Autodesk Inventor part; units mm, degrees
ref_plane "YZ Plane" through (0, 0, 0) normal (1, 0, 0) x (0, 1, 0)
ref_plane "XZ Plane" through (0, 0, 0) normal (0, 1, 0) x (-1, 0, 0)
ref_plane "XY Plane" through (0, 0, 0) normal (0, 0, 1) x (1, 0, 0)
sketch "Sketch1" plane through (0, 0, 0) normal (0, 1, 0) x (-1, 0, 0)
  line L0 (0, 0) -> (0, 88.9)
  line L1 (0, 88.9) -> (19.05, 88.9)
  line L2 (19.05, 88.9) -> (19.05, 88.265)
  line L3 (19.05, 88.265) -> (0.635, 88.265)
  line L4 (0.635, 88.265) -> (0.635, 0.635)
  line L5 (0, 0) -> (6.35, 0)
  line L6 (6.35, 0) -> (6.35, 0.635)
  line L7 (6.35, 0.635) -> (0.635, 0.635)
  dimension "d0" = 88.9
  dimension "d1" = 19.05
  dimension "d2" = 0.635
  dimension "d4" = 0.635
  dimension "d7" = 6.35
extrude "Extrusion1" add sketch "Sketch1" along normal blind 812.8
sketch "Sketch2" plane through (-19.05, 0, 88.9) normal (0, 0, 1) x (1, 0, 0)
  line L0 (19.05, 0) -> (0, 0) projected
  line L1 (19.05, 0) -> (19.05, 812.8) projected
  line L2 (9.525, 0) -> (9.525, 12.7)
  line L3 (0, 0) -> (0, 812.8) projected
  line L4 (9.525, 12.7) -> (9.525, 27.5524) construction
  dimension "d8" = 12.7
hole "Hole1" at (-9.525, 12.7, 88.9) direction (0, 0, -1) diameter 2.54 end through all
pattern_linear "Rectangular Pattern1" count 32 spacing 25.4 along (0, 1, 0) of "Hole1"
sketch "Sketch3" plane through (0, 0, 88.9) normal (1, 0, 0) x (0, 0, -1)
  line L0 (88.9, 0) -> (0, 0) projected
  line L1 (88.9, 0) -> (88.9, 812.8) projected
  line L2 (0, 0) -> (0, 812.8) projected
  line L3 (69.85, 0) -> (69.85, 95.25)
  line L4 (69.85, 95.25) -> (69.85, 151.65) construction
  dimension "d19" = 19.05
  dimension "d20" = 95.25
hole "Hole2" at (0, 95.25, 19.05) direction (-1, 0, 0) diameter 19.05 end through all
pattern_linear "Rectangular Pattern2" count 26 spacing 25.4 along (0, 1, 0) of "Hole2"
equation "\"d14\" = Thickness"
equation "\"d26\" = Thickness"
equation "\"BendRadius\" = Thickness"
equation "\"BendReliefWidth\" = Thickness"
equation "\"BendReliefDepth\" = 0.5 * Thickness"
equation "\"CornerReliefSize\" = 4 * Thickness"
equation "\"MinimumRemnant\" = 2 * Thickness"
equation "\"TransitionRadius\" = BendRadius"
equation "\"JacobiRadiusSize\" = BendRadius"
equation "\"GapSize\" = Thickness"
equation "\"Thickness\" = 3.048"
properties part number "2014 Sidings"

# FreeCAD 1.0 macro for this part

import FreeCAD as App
import Part
import Sketcher
from FreeCAD import Vector
Q = App.Units.Quantity

doc = App.newDocument("Part")
body = doc.addObject("PartDesign::Body", "Body")

sketch1 = body.newObject("Sketcher::SketchObject", "Sketch")
sketch1.AttachmentSupport = (doc.getObject("XZ_Plane"), [""])
sketch1.MapMode = "FlatFace"
sketch1.addGeometry(Part.LineSegment(Vector(0, 88.9, 0), Vector(0, 0, 0)), False)
sketch1.addGeometry(Part.LineSegment(Vector(0, 0, 0), Vector(-6.35, 0, 0)), False)
sketch1.addGeometry(Part.LineSegment(Vector(-6.35, 0, 0), Vector(-6.35, 0.635, 0)), False)
sketch1.addGeometry(Part.LineSegment(Vector(-6.35, 0.635, 0), Vector(-0.635, 0.635, 0)), False)
sketch1.addGeometry(Part.LineSegment(Vector(-0.635, 0.635, 0), Vector(-0.635, 88.265, 0)), False)
sketch1.addGeometry(Part.LineSegment(Vector(-0.635, 88.265, 0), Vector(-19.05, 88.265, 0)), False)
sketch1.addGeometry(Part.LineSegment(Vector(-19.05, 88.265, 0), Vector(-19.05, 88.9, 0)), False)
sketch1.addGeometry(Part.LineSegment(Vector(-19.05, 88.9, 0), Vector(0, 88.9, 0)), False)
sketch1.addConstraint(Sketcher.Constraint("Coincident", 0, 2, 1, 1))
sketch1.addConstraint(Sketcher.Constraint("Coincident", 1, 2, 2, 1))
sketch1.addConstraint(Sketcher.Constraint("Coincident", 2, 2, 3, 1))
sketch1.addConstraint(Sketcher.Constraint("Coincident", 3, 2, 4, 1))
sketch1.addConstraint(Sketcher.Constraint("Coincident", 4, 2, 5, 1))
sketch1.addConstraint(Sketcher.Constraint("Coincident", 5, 2, 6, 1))
sketch1.addConstraint(Sketcher.Constraint("Coincident", 6, 2, 7, 1))
sketch1.addConstraint(Sketcher.Constraint("Coincident", 7, 2, 0, 1))
sketch1.addConstraint(Sketcher.Constraint("Vertical", 0))
sketch1.addConstraint(Sketcher.Constraint("Horizontal", 1))
sketch1.addConstraint(Sketcher.Constraint("Vertical", 2))
sketch1.addConstraint(Sketcher.Constraint("Horizontal", 3))
sketch1.addConstraint(Sketcher.Constraint("Vertical", 4))
sketch1.addConstraint(Sketcher.Constraint("Horizontal", 5))
sketch1.addConstraint(Sketcher.Constraint("Vertical", 6))
sketch1.addConstraint(Sketcher.Constraint("Horizontal", 7))
sketch1.addConstraint(Sketcher.Constraint("Coincident", 0, 2, -1, 1))
sketch1.addConstraint(Sketcher.Constraint("Equal", 2, 6))
sketch1.addConstraint(Sketcher.Constraint("DistanceY", 0, 2, 0, 1, Q("3.5 in")))
sketch1.addConstraint(Sketcher.Constraint("DistanceX", 1, 2, 1, 1, Q("0.25 in")))
sketch1.addConstraint(Sketcher.Constraint("DistanceX", 7, 1, 7, 2, Q("0.75 in")))
sketch1.addConstraint(Sketcher.Constraint("DistanceY", 2, 1, 2, 2, Q("0.025 in")))
sketch1.addConstraint(Sketcher.Constraint("DistanceX", 3, 2, -1, 1, Q("0.025 in")))
pad1 = body.newObject("PartDesign::Pad", "Pad")
pad1.Profile = sketch1
pad1.Length = Q("32 in")
pad1.Reversed = True

sketch2 = body.newObject("Sketcher::SketchObject", "Sketch001")
sketch2.AttachmentSupport = (doc.getObject("XY_Plane"), [""])
sketch2.MapMode = "FlatFace"
sketch2.AttachmentOffset = App.Placement(Vector(0, 0, 3.5 * 25.4), App.Rotation())
sketch2.addGeometry(Part.Circle(Vector(-9.525, 12.7, 0), Vector(0, 0, 1), 1.27), False)
sketch2.addConstraint(Sketcher.Constraint("Diameter", 0, Q("0.1 in")))
sketch2.addConstraint(Sketcher.Constraint("DistanceY", -1, 1, 0, 3, Q("0.5 in")))
sketch2.addConstraint(Sketcher.Constraint("DistanceX", 0, 3, -1, 1, Q("0.375 in")))
doc.recompute()
hole = body.newObject("PartDesign::Hole", "Hole")
hole.Profile = sketch2
hole.ThreadType = "None"
hole.Diameter = Q("0.1 in")
hole.DepthType = "ThroughAll"
doc.recompute()

linearpattern = body.newObject("PartDesign::LinearPattern", "LinearPattern")
linearpattern.Originals = [hole]
linearpattern.Direction = (doc.getObject("Y_Axis"), [""])
linearpattern.Mode = "offset"
linearpattern.Offset = Q("1 in")
linearpattern.Occurrences = 32
body.Tip = linearpattern

sketch3 = body.newObject("Sketcher::SketchObject", "Sketch002")
sketch3.AttachmentSupport = (doc.getObject("YZ_Plane"), [""])
sketch3.MapMode = "FlatFace"
sketch3.addGeometry(Part.Circle(Vector(95.25, 19.05, 0), Vector(0, 0, 1), 9.525), False)
sketch3.addConstraint(Sketcher.Constraint("Diameter", 0, Q("0.75 in")))
sketch3.addConstraint(Sketcher.Constraint("DistanceX", -1, 1, 0, 3, Q("3.75 in")))
sketch3.addConstraint(Sketcher.Constraint("DistanceY", -1, 1, 0, 3, Q("0.75 in")))
doc.recompute()
hole2 = body.newObject("PartDesign::Hole", "Hole001")
hole2.Profile = sketch3
hole2.ThreadType = "None"
hole2.Diameter = Q("0.75 in")
hole2.DepthType = "ThroughAll"
doc.recompute()

linearpattern2 = body.newObject("PartDesign::LinearPattern", "LinearPattern001")
linearpattern2.Originals = [hole2]
linearpattern2.Direction = (doc.getObject("Y_Axis"), [""])
linearpattern2.Mode = "offset"
linearpattern2.Offset = Q("1 in")
linearpattern2.Occurrences = 26
body.Tip = linearpattern2

doc.recompute()
